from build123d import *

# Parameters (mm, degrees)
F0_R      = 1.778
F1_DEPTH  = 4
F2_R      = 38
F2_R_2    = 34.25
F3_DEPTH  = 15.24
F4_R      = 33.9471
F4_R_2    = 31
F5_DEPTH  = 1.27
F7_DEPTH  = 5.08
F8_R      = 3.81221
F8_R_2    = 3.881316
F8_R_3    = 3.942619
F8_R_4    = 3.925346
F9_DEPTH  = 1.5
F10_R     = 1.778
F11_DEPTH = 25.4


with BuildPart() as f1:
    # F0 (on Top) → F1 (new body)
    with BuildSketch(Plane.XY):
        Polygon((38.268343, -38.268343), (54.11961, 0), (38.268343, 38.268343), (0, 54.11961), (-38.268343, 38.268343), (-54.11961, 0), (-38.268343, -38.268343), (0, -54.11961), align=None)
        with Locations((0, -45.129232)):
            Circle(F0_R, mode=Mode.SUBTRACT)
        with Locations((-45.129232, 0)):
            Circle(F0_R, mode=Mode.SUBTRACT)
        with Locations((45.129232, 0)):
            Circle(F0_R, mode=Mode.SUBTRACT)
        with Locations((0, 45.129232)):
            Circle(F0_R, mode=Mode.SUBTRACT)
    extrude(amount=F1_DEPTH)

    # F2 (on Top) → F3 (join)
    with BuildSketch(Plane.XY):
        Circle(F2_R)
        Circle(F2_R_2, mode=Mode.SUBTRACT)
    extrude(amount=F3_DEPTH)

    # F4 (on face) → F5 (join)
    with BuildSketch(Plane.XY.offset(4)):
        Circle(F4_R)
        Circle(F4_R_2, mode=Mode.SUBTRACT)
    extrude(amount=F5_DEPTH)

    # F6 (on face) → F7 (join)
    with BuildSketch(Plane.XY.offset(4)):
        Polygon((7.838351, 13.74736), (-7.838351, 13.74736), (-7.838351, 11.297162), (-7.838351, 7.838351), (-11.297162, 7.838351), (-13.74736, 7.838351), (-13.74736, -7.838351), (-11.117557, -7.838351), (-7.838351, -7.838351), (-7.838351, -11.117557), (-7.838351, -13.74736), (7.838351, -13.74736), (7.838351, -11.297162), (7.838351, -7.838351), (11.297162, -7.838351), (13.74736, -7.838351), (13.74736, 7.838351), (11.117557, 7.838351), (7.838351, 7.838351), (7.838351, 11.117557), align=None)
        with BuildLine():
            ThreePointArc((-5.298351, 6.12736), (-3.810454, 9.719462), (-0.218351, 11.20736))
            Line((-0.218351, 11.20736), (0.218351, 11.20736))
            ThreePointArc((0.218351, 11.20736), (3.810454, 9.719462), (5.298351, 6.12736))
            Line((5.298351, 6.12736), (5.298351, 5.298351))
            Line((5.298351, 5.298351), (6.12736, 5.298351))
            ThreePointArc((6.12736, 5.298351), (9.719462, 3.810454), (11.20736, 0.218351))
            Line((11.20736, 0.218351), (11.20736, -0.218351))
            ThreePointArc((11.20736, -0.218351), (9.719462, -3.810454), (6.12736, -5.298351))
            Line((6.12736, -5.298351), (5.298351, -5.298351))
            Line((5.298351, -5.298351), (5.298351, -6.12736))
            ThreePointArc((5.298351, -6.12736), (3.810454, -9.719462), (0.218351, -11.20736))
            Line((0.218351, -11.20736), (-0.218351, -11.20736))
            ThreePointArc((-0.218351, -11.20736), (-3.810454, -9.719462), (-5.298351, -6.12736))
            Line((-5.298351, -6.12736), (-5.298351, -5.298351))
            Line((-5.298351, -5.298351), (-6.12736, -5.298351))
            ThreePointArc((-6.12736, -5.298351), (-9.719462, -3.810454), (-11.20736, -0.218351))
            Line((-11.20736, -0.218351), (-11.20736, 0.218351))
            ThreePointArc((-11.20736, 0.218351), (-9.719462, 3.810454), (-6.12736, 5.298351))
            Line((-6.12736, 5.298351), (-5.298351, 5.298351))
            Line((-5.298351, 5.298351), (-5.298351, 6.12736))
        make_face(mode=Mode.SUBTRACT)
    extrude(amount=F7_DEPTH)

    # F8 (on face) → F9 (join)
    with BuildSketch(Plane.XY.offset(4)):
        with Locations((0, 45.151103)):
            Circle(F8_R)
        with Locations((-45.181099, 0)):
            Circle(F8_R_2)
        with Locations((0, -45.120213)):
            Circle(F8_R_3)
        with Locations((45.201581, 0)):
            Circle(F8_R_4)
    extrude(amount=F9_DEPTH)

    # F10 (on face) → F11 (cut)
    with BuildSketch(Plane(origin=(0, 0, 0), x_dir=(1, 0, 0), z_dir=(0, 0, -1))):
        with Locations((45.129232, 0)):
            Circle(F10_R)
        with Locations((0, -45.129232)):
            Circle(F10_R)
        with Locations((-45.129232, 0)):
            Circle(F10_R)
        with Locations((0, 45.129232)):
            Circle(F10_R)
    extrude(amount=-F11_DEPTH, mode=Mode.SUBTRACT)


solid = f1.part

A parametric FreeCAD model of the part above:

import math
import FreeCAD as App
import Part
import Sketcher
from FreeCAD import Vector
Q = App.Units.Quantity

doc = App.newDocument("Part")
body = doc.addObject("PartDesign::Body", "Body")

# Sketch on XY plane
sketch1 = body.newObject("Sketcher::SketchObject", "Sketch")
sketch1.AttachmentSupport = (doc.getObject("XY_Plane"), [""])
sketch1.MapMode = "FlatFace"
sketch1.addGeometry(Part.LineSegment(Vector(38.3, -38.3, 0), Vector(54.1, 0, 0)), False)
sketch1.addGeometry(Part.LineSegment(Vector(54.1, 0, 0), Vector(38.3, 38.3, 0)), False)
sketch1.addGeometry(Part.LineSegment(Vector(38.3, 38.3, 0), Vector(0, 54.1, 0)), False)
sketch1.addGeometry(Part.LineSegment(Vector(0, 54.1, 0), Vector(-38.3, 38.3, 0)), False)
sketch1.addGeometry(Part.LineSegment(Vector(-38.3, 38.3, 0), Vector(-54.1, 0, 0)), False)
sketch1.addGeometry(Part.LineSegment(Vector(-54.1, 0, 0), Vector(-38.3, -38.3, 0)), False)
sketch1.addGeometry(Part.LineSegment(Vector(-38.3, -38.3, 0), Vector(0, -54.1, 0)), False)
sketch1.addGeometry(Part.LineSegment(Vector(0, -54.1, 0), Vector(38.3, -38.3, 0)), False)
sketch1.addGeometry(Part.Circle(Vector(0, -45.1, 0), Vector(0, 0, 1), 1.8), False)
sketch1.addGeometry(Part.Circle(Vector(-45.1, 0, 0), Vector(0, 0, 1), 1.8), False)
sketch1.addGeometry(Part.Circle(Vector(45.1, 0, 0), Vector(0, 0, 1), 1.8), False)
sketch1.addGeometry(Part.Circle(Vector(0, 45.1, 0), Vector(0, 0, 1), 1.8), False)
sketch1.addConstraint(Sketcher.Constraint("Coincident", 0, 2, 1, 1))
sketch1.addConstraint(Sketcher.Constraint("Coincident", 1, 2, 2, 1))
sketch1.addConstraint(Sketcher.Constraint("Coincident", 2, 2, 3, 1))
sketch1.addConstraint(Sketcher.Constraint("Coincident", 3, 2, 4, 1))
sketch1.addConstraint(Sketcher.Constraint("Coincident", 4, 2, 5, 1))
sketch1.addConstraint(Sketcher.Constraint("Coincident", 5, 2, 6, 1))
sketch1.addConstraint(Sketcher.Constraint("Coincident", 6, 2, 7, 1))
sketch1.addConstraint(Sketcher.Constraint("Coincident", 7, 2, 0, 1))
sketch1.addConstraint(Sketcher.Constraint("Equal", 8, 9))
sketch1.addConstraint(Sketcher.Constraint("Equal", 9, 10))
sketch1.addConstraint(Sketcher.Constraint("Equal", 10, 11))
sketch1.addConstraint(Sketcher.Constraint("Symmetric", 9, 3, 10, 3, -1, 1))
sketch1.addConstraint(Sketcher.Constraint("Symmetric", 8, 3, 11, 3, -1, 1))
sketch1.addConstraint(Sketcher.Constraint("Symmetric", 0, 2, 4, 2, -1, 1))
sketch1.addConstraint(Sketcher.Constraint("Symmetric", 1, 2, 5, 2, -1, 1))
sketch1.addConstraint(Sketcher.Constraint("Symmetric", 2, 2, 6, 2, -1, 1))
sketch1.addConstraint(Sketcher.Constraint("Symmetric", 3, 2, 7, 2, -1, 1))
sketch1.addConstraint(Sketcher.Constraint("Symmetric", 1, 2, 3, 2, -2))
sketch1.addConstraint(Sketcher.Constraint("PointOnObject", 8, 3, -2))
sketch1.addConstraint(Sketcher.Constraint("PointOnObject", 9, 3, -1))
sketch1.addConstraint(Sketcher.Constraint("PointOnObject", 0, 2, -1))
sketch1.addConstraint(Sketcher.Constraint("PointOnObject", 2, 2, -2))
sketch1.addConstraint(Sketcher.Constraint("Perpendicular", 0, 2))
sketch1.addConstraint(Sketcher.Constraint("Equal", 1, 2))
sketch1.addConstraint(Sketcher.Constraint("Diameter", 8, Q("0.14 in")))
sketch1.addConstraint(Sketcher.Constraint("Angle", 0, Q("67.5 deg")))
sketch1.addConstraint(Sketcher.Constraint("DistanceX", -1, 1, 0, 2, 54.11961))
sketch1.addConstraint(Sketcher.Constraint("DistanceX", 9, 3, 0, 2, 99.248842))
sketch1.addConstraint(Sketcher.Constraint("DistanceY", 1, 2, 11, 3, 6.860889))
pad1 = body.newObject("PartDesign::Pad", "Pad")
pad1.Profile = sketch1
pad1.Length = 4

# Sketch on XY plane
sketch2 = body.newObject("Sketcher::SketchObject", "Sketch001")
sketch2.AttachmentSupport = (doc.getObject("XY_Plane"), [""])
sketch2.MapMode = "FlatFace"
sketch2.addGeometry(Part.Circle(Vector(0, 0, 0), Vector(0, 0, 1), 38), False)
sketch2.addGeometry(Part.Circle(Vector(0, 0, 0), Vector(0, 0, 1), 34), False)
sketch2.addConstraint(Sketcher.Constraint("Coincident", 0, 3, -1, 1))
sketch2.addConstraint(Sketcher.Constraint("Coincident", 1, 3, -1, 1))
sketch2.addConstraint(Sketcher.Constraint("Diameter", 0, 76.0))
sketch2.addConstraint(Sketcher.Constraint("Diameter", 1, 68.5))
pad2 = body.newObject("PartDesign::Pad", "Pad001")
pad2.Profile = sketch2
pad2.Length = Q("0.6 in")

# Sketch on XY plane
sketch3 = body.newObject("Sketcher::SketchObject", "Sketch002")
sketch3.AttachmentSupport = (doc.getObject("XY_Plane"), [""])
sketch3.MapMode = "FlatFace"
sketch3.AttachmentOffset = App.Placement(Vector(0, 0, 4), App.Rotation())
sketch3.addGeometry(Part.Circle(Vector(0, 0, 0), Vector(0, 0, 1), 34), False)
sketch3.addGeometry(Part.Circle(Vector(0, 0, 0), Vector(0, 0, 1), 31), False)
sketch3.addConstraint(Sketcher.Constraint("Coincident", 0, 3, -1, 1))
sketch3.addConstraint(Sketcher.Constraint("Coincident", 1, 3, -1, 1))
sketch3.addConstraint(Sketcher.Constraint("Diameter", 0, Q("2.673 in")))
sketch3.addConstraint(Sketcher.Constraint("Diameter", 1, 62.0))
pad3 = body.newObject("PartDesign::Pad", "Pad002")
pad3.Profile = sketch3
pad3.Length = Q("0.05 in")

# Sketch on XY plane
sketch4 = body.newObject("Sketcher::SketchObject", "Sketch003")
sketch4.AttachmentSupport = (doc.getObject("XY_Plane"), [""])
sketch4.MapMode = "FlatFace"
sketch4.AttachmentOffset = App.Placement(Vector(0, 0, 4), App.Rotation())
sketch4.addGeometry(Part.LineSegment(Vector(7.84, 13.75, 0), Vector(-7.84, 13.75, 0)), False)
sketch4.addGeometry(Part.LineSegment(Vector(-7.84, 13.75, 0), Vector(-7.84, 7.84, 0)), False)
sketch4.addGeometry(Part.LineSegment(Vector(-7.84, 7.84, 0), Vector(-13.75, 7.84, 0)), False)
sketch4.addGeometry(Part.LineSegment(Vector(-13.75, 7.84, 0), Vector(-13.75, -7.84, 0)), False)
sketch4.addGeometry(Part.LineSegment(Vector(-13.75, -7.84, 0), Vector(-7.84, -7.84, 0)), False)
sketch4.addGeometry(Part.LineSegment(Vector(-7.84, -7.84, 0), Vector(-7.84, -13.75, 0)), False)
sketch4.addGeometry(Part.LineSegment(Vector(-7.84, -13.75, 0), Vector(7.84, -13.75, 0)), False)
sketch4.addGeometry(Part.LineSegment(Vector(7.84, -13.75, 0), Vector(7.84, -7.84, 0)), False)
sketch4.addGeometry(Part.LineSegment(Vector(7.84, -7.84, 0), Vector(13.75, -7.84, 0)), False)
sketch4.addGeometry(Part.LineSegment(Vector(13.75, -7.84, 0), Vector(13.75, 7.84, 0)), False)
sketch4.addGeometry(Part.LineSegment(Vector(13.75, 7.84, 0), Vector(7.84, 7.84, 0)), False)
sketch4.addGeometry(Part.LineSegment(Vector(7.84, 7.84, 0), Vector(7.84, 13.75, 0)), False)
sketch4.addGeometry(Part.LineSegment(Vector(-5.3, 5.3, 0), Vector(-5.3, 6.13, 0)), False)
sketch4.addGeometry(Part.ArcOfCircle(Part.Circle(Vector(-0.22, 6.13, 0), Vector(0, 0, 1), 5.08), math.radians(90), math.radians(180)), False)
sketch4.addGeometry(Part.LineSegment(Vector(-0.22, 11.21, 0), Vector(0.22, 11.21, 0)), False)
sketch4.addGeometry(Part.ArcOfCircle(Part.Circle(Vector(0.22, 6.13, 0), Vector(0, 0, 1), 5.08), math.radians(0), math.radians(90)), False)
sketch4.addGeometry(Part.LineSegment(Vector(5.3, 6.13, 0), Vector(5.3, 5.3, 0)), False)
sketch4.addGeometry(Part.LineSegment(Vector(5.3, 5.3, 0), Vector(6.13, 5.3, 0)), False)
sketch4.addGeometry(Part.ArcOfCircle(Part.Circle(Vector(6.13, 0.22, 0), Vector(0, 0, 1), 5.08), math.radians(0), math.radians(90)), False)
sketch4.addGeometry(Part.LineSegment(Vector(11.21, 0.22, 0), Vector(11.21, -0.22, 0)), False)
sketch4.addGeometry(Part.ArcOfCircle(Part.Circle(Vector(6.13, -0.22, 0), Vector(0, 0, 1), 5.08), math.radians(-90), math.radians(0)), False)
sketch4.addGeometry(Part.LineSegment(Vector(6.13, -5.3, 0), Vector(5.3, -5.3, 0)), False)
sketch4.addGeometry(Part.LineSegment(Vector(5.3, -5.3, 0), Vector(5.3, -6.13, 0)), False)
sketch4.addGeometry(Part.ArcOfCircle(Part.Circle(Vector(0.22, -6.13, 0), Vector(0, 0, 1), 5.08), math.radians(-90), math.radians(0)), False)
sketch4.addGeometry(Part.LineSegment(Vector(0.22, -11.21, 0), Vector(-0.22, -11.21, 0)), False)
sketch4.addGeometry(Part.ArcOfCircle(Part.Circle(Vector(-0.22, -6.13, 0), Vector(0, 0, 1), 5.08), math.radians(180), math.radians(270)), False)
sketch4.addGeometry(Part.LineSegment(Vector(-5.3, -6.13, 0), Vector(-5.3, -5.3, 0)), False)
sketch4.addGeometry(Part.LineSegment(Vector(-5.3, -5.3, 0), Vector(-6.13, -5.3, 0)), False)
sketch4.addGeometry(Part.ArcOfCircle(Part.Circle(Vector(-6.13, -0.22, 0), Vector(0, 0, 1), 5.08), math.radians(180), math.radians(270)), False)
sketch4.addGeometry(Part.LineSegment(Vector(-11.21, -0.22, 0), Vector(-11.21, 0.22, 0)), False)
sketch4.addGeometry(Part.ArcOfCircle(Part.Circle(Vector(-6.13, 0.22, 0), Vector(0, 0, 1), 5.08), math.radians(90), math.radians(180)), False)
sketch4.addGeometry(Part.LineSegment(Vector(-6.13, 5.3, 0), Vector(-5.3, 5.3, 0)), False)
sketch4.addConstraint(Sketcher.Constraint("Coincident", 0, 2, 1, 1))
sketch4.addConstraint(Sketcher.Constraint("Coincident", 1, 2, 2, 1))
sketch4.addConstraint(Sketcher.Constraint("Coincident", 2, 2, 3, 1))
sketch4.addConstraint(Sketcher.Constraint("Coincident", 3, 2, 4, 1))
sketch4.addConstraint(Sketcher.Constraint("Coincident", 4, 2, 5, 1))
sketch4.addConstraint(Sketcher.Constraint("Coincident", 5, 2, 6, 1))
sketch4.addConstraint(Sketcher.Constraint("Coincident", 6, 2, 7, 1))
sketch4.addConstraint(Sketcher.Constraint("Coincident", 7, 2, 8, 1))
sketch4.addConstraint(Sketcher.Constraint("Coincident", 8, 2, 9, 1))
sketch4.addConstraint(Sketcher.Constraint("Coincident", 9, 2, 10, 1))
sketch4.addConstraint(Sketcher.Constraint("Coincident", 10, 2, 11, 1))
sketch4.addConstraint(Sketcher.Constraint("Coincident", 11, 2, 0, 1))
sketch4.addConstraint(Sketcher.Constraint("Tangent", 12, 2, 13, 2))
sketch4.addConstraint(Sketcher.Constraint("Tangent", 13, 1, 14, 1))
sketch4.addConstraint(Sketcher.Constraint("Tangent", 14, 2, 15, 2))
sketch4.addConstraint(Sketcher.Constraint("Tangent", 15, 1, 16, 1))
sketch4.addConstraint(Sketcher.Constraint("Coincident", 16, 2, 17, 1))
sketch4.addConstraint(Sketcher.Constraint("Tangent", 17, 2, 18, 2))
sketch4.addConstraint(Sketcher.Constraint("Tangent", 18, 1, 19, 1))
sketch4.addConstraint(Sketcher.Constraint("Tangent", 19, 2, 20, 2))
sketch4.addConstraint(Sketcher.Constraint("Tangent", 20, 1, 21, 1))
sketch4.addConstraint(Sketcher.Constraint("Coincident", 21, 2, 22, 1))
sketch4.addConstraint(Sketcher.Constraint("Tangent", 22, 2, 23, 2))
sketch4.addConstraint(Sketcher.Constraint("Tangent", 23, 1, 24, 1))
sketch4.addConstraint(Sketcher.Constraint("Tangent", 24, 2, 25, 2))
sketch4.addConstraint(Sketcher.Constraint("Tangent", 25, 1, 26, 1))
sketch4.addConstraint(Sketcher.Constraint("Coincident", 26, 2, 27, 1))
sketch4.addConstraint(Sketcher.Constraint("Tangent", 27, 2, 28, 2))
sketch4.addConstraint(Sketcher.Constraint("Tangent", 28, 1, 29, 1))
sketch4.addConstraint(Sketcher.Constraint("Tangent", 29, 2, 30, 2))
sketch4.addConstraint(Sketcher.Constraint("Tangent", 30, 1, 31, 1))
sketch4.addConstraint(Sketcher.Constraint("Coincident", 31, 2, 12, 1))
sketch4.addConstraint(Sketcher.Constraint("Horizontal", 0))
sketch4.addConstraint(Sketcher.Constraint("Vertical", 1))
sketch4.addConstraint(Sketcher.Constraint("Horizontal", 2))
sketch4.addConstraint(Sketcher.Constraint("Vertical", 3))
sketch4.addConstraint(Sketcher.Constraint("Horizontal", 4))
sketch4.addConstraint(Sketcher.Constraint("Vertical", 5))
sketch4.addConstraint(Sketcher.Constraint("Horizontal", 6))
sketch4.addConstraint(Sketcher.Constraint("Vertical", 7))
sketch4.addConstraint(Sketcher.Constraint("Horizontal", 8))
sketch4.addConstraint(Sketcher.Constraint("Vertical", 9))
sketch4.addConstraint(Sketcher.Constraint("Horizontal", 10))
sketch4.addConstraint(Sketcher.Constraint("Vertical", 11))
sketch4.addConstraint(Sketcher.Constraint("Vertical", 12))
sketch4.addConstraint(Sketcher.Constraint("Horizontal", 14))
sketch4.addConstraint(Sketcher.Constraint("Vertical", 16))
sketch4.addConstraint(Sketcher.Constraint("Horizontal", 17))
sketch4.addConstraint(Sketcher.Constraint("Vertical", 19))
sketch4.addConstraint(Sketcher.Constraint("Horizontal", 21))
sketch4.addConstraint(Sketcher.Constraint("Vertical", 22))
sketch4.addConstraint(Sketcher.Constraint("Horizontal", 24))
sketch4.addConstraint(Sketcher.Constraint("Vertical", 26))
sketch4.addConstraint(Sketcher.Constraint("Horizontal", 27))
sketch4.addConstraint(Sketcher.Constraint("Vertical", 29))
sketch4.addConstraint(Sketcher.Constraint("Horizontal", 31))
sketch4.addConstraint(Sketcher.Constraint("Equal", 13, 15))
sketch4.addConstraint(Sketcher.Constraint("Equal", 15, 18))
sketch4.addConstraint(Sketcher.Constraint("Equal", 18, 20))
sketch4.addConstraint(Sketcher.Constraint("Equal", 20, 23))
sketch4.addConstraint(Sketcher.Constraint("Equal", 23, 25))
sketch4.addConstraint(Sketcher.Constraint("Equal", 25, 28))
sketch4.addConstraint(Sketcher.Constraint("Equal", 28, 30))
sketch4.addConstraint(Sketcher.Constraint("Symmetric", 13, 3, 23, 3, -1, 1))
sketch4.addConstraint(Sketcher.Constraint("Symmetric", 18, 3, 28, 3, -1, 1))
sketch4.addConstraint(Sketcher.Constraint("Symmetric", 0, 2, 6, 2, -1, 1))
sketch4.addConstraint(Sketcher.Constraint("Symmetric", 2, 2, 8, 2, -1, 1))
sketch4.addConstraint(Sketcher.Constraint("Symmetric", 4, 2, 10, 2, -1, 1))
sketch4.addConstraint(Sketcher.Constraint("Symmetric", 4, 2, 7, 2, -2))
sketch4.addConstraint(Sketcher.Constraint("Symmetric", 21, 2, 26, 2, -2))
sketch4.addConstraint(Sketcher.Constraint("Symmetric", 16, 2, 31, 2, -2))
sketch4.addConstraint(Sketcher.Constraint("Equal", 10, 1))
sketch4.addConstraint(Sketcher.Constraint("Equal", 6, 3))
sketch4.addConstraint(Sketcher.Constraint("Equal", 31, 12))
sketch4.addConstraint(Sketcher.Constraint("Equal", 24, 19))
sketch4.addConstraint(Sketcher.Constraint("Radius", 13, Q("0.2 in")))
sketch4.addConstraint(Sketcher.Constraint("DistanceX", 0, 2, 13, 3, Q("0.3 in")))
sketch4.addConstraint(Sketcher.Constraint("DistanceY", 13, 3, 0, 2, Q("0.3 in")))
sketch4.addConstraint(Sketcher.Constraint("DistanceX", 2, 2, 2, 1, 5.909009))
sketch4.addConstraint(Sketcher.Constraint("DistanceX", 0, 2, 0, 1, 15.676702))
pad4 = body.newObject("PartDesign::Pad", "Pad003")
pad4.Profile = sketch4
pad4.Length = Q("0.2 in")

# Sketch on XY plane
sketch5 = body.newObject("Sketcher::SketchObject", "Sketch004")
sketch5.AttachmentSupport = (doc.getObject("XY_Plane"), [""])
sketch5.MapMode = "FlatFace"
sketch5.AttachmentOffset = App.Placement(Vector(0, 0, 4), App.Rotation())
sketch5.addGeometry(Part.Circle(Vector(0, 45.2, 0), Vector(0, 0, 1), 3.8), False)
sketch5.addGeometry(Part.Circle(Vector(-45.2, 0, 0), Vector(0, 0, 1), 3.9), False)
sketch5.addGeometry(Part.Circle(Vector(0, -45.1, 0), Vector(0, 0, 1), 3.9), False)
sketch5.addGeometry(Part.Circle(Vector(45.2, 0, 0), Vector(0, 0, 1), 3.9), False)
sketch5.addConstraint(Sketcher.Constraint("PointOnObject", 0, 3, -2))
sketch5.addConstraint(Sketcher.Constraint("PointOnObject", 1, 3, -1))
sketch5.addConstraint(Sketcher.Constraint("PointOnObject", 2, 3, -2))
sketch5.addConstraint(Sketcher.Constraint("PointOnObject", 3, 3, -1))
sketch5.addConstraint(Sketcher.Constraint("Diameter", 0, 7.62442))
sketch5.addConstraint(Sketcher.Constraint("Diameter", 2, 7.885238))
sketch5.addConstraint(Sketcher.Constraint("Diameter", 3, 7.850692))
sketch5.addConstraint(Sketcher.Constraint("Diameter", 1, 7.762632))
sketch5.addConstraint(Sketcher.Constraint("DistanceX", 1, 3, -1, 1, 45.181099))
sketch5.addConstraint(Sketcher.Constraint("DistanceX", -1, 1, 3, 3, 45.201581))
sketch5.addConstraint(Sketcher.Constraint("DistanceY", -1, 1, 0, 3, 45.151103))
sketch5.addConstraint(Sketcher.Constraint("DistanceY", 2, 3, -1, 1, 45.120213))
pad5 = body.newObject("PartDesign::Pad", "Pad004")
pad5.Profile = sketch5
pad5.Length = 1.5

# Sketch on XY plane
sketch6 = body.newObject("Sketcher::SketchObject", "Sketch005")
sketch6.AttachmentSupport = (doc.getObject("XY_Plane"), [""])
sketch6.MapMode = "FlatFace"
sketch6.addGeometry(Part.Circle(Vector(45.1, 0, 0), Vector(0, 0, 1), 1.8), False)
sketch6.addGeometry(Part.Circle(Vector(0, 45.1, 0), Vector(0, 0, 1), 1.8), False)
sketch6.addGeometry(Part.Circle(Vector(-45.1, 0, 0), Vector(0, 0, 1), 1.8), False)
sketch6.addGeometry(Part.Circle(Vector(0, -45.1, 0), Vector(0, 0, 1), 1.8), False)
sketch6.addConstraint(Sketcher.Constraint("Equal", 0, 1))
sketch6.addConstraint(Sketcher.Constraint("Equal", 1, 2))
sketch6.addConstraint(Sketcher.Constraint("Equal", 2, 3))
sketch6.addConstraint(Sketcher.Constraint("Symmetric", 0, 3, 2, 3, -1, 1))
sketch6.addConstraint(Sketcher.Constraint("Symmetric", 1, 3, 3, 3, -1, 1))
sketch6.addConstraint(Sketcher.Constraint("PointOnObject", 0, 3, -1))
sketch6.addConstraint(Sketcher.Constraint("PointOnObject", 1, 3, -2))
sketch6.addConstraint(Sketcher.Constraint("Diameter", 0, Q("0.14 in")))
sketch6.addConstraint(Sketcher.Constraint("DistanceX", -1, 1, 0, 3, 45.129232))
sketch6.addConstraint(Sketcher.Constraint("DistanceY", -1, 1, 1, 3, 45.129232))
pocket1 = body.newObject("PartDesign::Pocket", "Pocket")
pocket1.Profile = sketch6
pocket1.Length = Q("1 in")
pocket1.Reversed = True

doc.recompute()
